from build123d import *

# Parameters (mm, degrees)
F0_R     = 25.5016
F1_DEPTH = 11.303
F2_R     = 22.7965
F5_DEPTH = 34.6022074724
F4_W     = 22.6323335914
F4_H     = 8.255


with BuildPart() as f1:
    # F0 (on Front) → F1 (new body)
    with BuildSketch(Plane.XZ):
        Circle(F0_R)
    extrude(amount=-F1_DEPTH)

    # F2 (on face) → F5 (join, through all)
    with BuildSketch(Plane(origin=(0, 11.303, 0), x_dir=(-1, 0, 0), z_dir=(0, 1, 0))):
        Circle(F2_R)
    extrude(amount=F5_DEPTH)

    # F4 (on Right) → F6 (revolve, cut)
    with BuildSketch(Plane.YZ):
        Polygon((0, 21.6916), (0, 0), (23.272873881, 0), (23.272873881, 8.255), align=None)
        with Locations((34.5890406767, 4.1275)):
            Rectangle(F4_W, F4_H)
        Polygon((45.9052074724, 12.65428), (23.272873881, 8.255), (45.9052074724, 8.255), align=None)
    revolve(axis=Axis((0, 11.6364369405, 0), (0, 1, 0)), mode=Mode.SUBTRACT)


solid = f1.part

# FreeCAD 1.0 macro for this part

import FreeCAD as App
import Part
import Sketcher

V = App.Vector
Q = App.Units.Quantity

doc = App.newDocument("Part")
params = doc.addObject("Spreadsheet::Sheet", "Params")
for row, (alias, value) in enumerate([
    ("sketch1_diameter", "2.008 in"),
    ("pad1_length", "0.445 in"),
    ("sketch2_diameter", "1.795 in"),
    ("pad2_length", "34.602207 mm"),
    ("sketch3_height", "0.854 in"),
    ("sketch3_length", "1.058 in"),
    ("groove_angle", "360 deg"),
], start=1):
    params.set(f"A{row}", alias)
    params.set(f"B{row}", "=" + value)
    params.setAlias(f"B{row}", alias)

body = doc.addObject("PartDesign::Body", "Body")

sketch1 = doc.addObject("Sketcher::SketchObject", "Sketch")
body.addObject(sketch1)
sketch1.AttachmentSupport = (doc.XZ_Plane, [""])
sketch1.MapMode = "FlatFace"
sketch1.addGeometry(Part.Circle(V(0, 0, 0), V(0, 0, 1), 26), False)
sketch1.addConstraint([
    Sketcher.Constraint("Coincident", 0, 3, -1, 1),
    Sketcher.Constraint("Diameter", 0, Q("2.008 in")),
])
sketch1.setExpression("Constraints[1]", "Params.sketch1_diameter")
pad1 = doc.addObject("PartDesign::Pad", "Pad")
body.addObject(pad1)
pad1.Profile = sketch1
pad1.setExpression("Length", "Params.pad1_length")
pad1.Reversed = True

sketch2 = doc.addObject("Sketcher::SketchObject", "Sketch001")
body.addObject(sketch2)
sketch2.AttachmentSupport = (doc.XZ_Plane, [""])
sketch2.MapMode = "FlatFace"
sketch2.AttachmentOffset = App.Placement(V(0, 0, -0.445 * 25.4), App.Rotation())
sketch2.addGeometry(Part.Circle(V(0, 0, 0), V(0, 0, 1), 23), False)
sketch2.addConstraint([
    Sketcher.Constraint("Coincident", 0, 3, -1, 1),
    Sketcher.Constraint("Diameter", 0, Q("1.795 in")),
])
sketch2.setExpression("Constraints[1]", "Params.sketch2_diameter")
pad2 = doc.addObject("PartDesign::Pad", "Pad001")
body.addObject(pad2)
pad2.Profile = sketch2
pad2.setExpression("Length", "Params.pad2_length")
pad2.Reversed = True

sketch3 = doc.addObject("Sketcher::SketchObject", "Sketch002")
body.addObject(sketch3)
sketch3.AttachmentSupport = (doc.YZ_Plane, [""])
sketch3.MapMode = "FlatFace"
sketch3.addGeometry([
    Part.LineSegment(V(0, 22, 0), V(0, 0, 0)),
    Part.LineSegment(V(0, 0, 0), V(46, 0, 0)),
    Part.LineSegment(V(46, 0, 0), V(46, 13, 0)),
    Part.LineSegment(V(46, 13, 0), V(23, 8, 0)),
    Part.LineSegment(V(23, 8, 0), V(0, 22, 0)),
], False)
sketch3.addConstraint([
    Sketcher.Constraint("Coincident", 0, 2, 1, 1),
    Sketcher.Constraint("Coincident", 1, 2, 2, 1),
    Sketcher.Constraint("Coincident", 2, 2, 3, 1),
    Sketcher.Constraint("Coincident", 3, 2, 4, 1),
    Sketcher.Constraint("Coincident", 4, 2, 0, 1),
    Sketcher.Constraint("Vertical", 0),
    Sketcher.Constraint("Horizontal", 1),
    Sketcher.Constraint("Vertical", 2),
    Sketcher.Constraint("Coincident", 0, 2, -1, 1),
    Sketcher.Constraint("Angle", 3, Q("-169 deg")),
    Sketcher.Constraint("Angle", 4, Q("150 deg")),
    Sketcher.Constraint("DistanceY", 0, 2, 0, 1, Q("0.854 in")),
    Sketcher.Constraint("Distance", 4, Q("1.058 in")),
    Sketcher.Constraint("DistanceY", 2, 1, 2, 2, Q("0.4982 in")),
])
sketch3.setExpression("Constraints[11]", "Params.sketch3_height")
sketch3.setExpression("Constraints[12]", "Params.sketch3_length")
groove = doc.addObject("PartDesign::Groove", "Groove")
body.addObject(groove)
groove.Profile = sketch3
groove.ReferenceAxis = (sketch3, ["H_Axis"])
groove.setExpression("Angle", "Params.groove_angle")

doc.recompute()
